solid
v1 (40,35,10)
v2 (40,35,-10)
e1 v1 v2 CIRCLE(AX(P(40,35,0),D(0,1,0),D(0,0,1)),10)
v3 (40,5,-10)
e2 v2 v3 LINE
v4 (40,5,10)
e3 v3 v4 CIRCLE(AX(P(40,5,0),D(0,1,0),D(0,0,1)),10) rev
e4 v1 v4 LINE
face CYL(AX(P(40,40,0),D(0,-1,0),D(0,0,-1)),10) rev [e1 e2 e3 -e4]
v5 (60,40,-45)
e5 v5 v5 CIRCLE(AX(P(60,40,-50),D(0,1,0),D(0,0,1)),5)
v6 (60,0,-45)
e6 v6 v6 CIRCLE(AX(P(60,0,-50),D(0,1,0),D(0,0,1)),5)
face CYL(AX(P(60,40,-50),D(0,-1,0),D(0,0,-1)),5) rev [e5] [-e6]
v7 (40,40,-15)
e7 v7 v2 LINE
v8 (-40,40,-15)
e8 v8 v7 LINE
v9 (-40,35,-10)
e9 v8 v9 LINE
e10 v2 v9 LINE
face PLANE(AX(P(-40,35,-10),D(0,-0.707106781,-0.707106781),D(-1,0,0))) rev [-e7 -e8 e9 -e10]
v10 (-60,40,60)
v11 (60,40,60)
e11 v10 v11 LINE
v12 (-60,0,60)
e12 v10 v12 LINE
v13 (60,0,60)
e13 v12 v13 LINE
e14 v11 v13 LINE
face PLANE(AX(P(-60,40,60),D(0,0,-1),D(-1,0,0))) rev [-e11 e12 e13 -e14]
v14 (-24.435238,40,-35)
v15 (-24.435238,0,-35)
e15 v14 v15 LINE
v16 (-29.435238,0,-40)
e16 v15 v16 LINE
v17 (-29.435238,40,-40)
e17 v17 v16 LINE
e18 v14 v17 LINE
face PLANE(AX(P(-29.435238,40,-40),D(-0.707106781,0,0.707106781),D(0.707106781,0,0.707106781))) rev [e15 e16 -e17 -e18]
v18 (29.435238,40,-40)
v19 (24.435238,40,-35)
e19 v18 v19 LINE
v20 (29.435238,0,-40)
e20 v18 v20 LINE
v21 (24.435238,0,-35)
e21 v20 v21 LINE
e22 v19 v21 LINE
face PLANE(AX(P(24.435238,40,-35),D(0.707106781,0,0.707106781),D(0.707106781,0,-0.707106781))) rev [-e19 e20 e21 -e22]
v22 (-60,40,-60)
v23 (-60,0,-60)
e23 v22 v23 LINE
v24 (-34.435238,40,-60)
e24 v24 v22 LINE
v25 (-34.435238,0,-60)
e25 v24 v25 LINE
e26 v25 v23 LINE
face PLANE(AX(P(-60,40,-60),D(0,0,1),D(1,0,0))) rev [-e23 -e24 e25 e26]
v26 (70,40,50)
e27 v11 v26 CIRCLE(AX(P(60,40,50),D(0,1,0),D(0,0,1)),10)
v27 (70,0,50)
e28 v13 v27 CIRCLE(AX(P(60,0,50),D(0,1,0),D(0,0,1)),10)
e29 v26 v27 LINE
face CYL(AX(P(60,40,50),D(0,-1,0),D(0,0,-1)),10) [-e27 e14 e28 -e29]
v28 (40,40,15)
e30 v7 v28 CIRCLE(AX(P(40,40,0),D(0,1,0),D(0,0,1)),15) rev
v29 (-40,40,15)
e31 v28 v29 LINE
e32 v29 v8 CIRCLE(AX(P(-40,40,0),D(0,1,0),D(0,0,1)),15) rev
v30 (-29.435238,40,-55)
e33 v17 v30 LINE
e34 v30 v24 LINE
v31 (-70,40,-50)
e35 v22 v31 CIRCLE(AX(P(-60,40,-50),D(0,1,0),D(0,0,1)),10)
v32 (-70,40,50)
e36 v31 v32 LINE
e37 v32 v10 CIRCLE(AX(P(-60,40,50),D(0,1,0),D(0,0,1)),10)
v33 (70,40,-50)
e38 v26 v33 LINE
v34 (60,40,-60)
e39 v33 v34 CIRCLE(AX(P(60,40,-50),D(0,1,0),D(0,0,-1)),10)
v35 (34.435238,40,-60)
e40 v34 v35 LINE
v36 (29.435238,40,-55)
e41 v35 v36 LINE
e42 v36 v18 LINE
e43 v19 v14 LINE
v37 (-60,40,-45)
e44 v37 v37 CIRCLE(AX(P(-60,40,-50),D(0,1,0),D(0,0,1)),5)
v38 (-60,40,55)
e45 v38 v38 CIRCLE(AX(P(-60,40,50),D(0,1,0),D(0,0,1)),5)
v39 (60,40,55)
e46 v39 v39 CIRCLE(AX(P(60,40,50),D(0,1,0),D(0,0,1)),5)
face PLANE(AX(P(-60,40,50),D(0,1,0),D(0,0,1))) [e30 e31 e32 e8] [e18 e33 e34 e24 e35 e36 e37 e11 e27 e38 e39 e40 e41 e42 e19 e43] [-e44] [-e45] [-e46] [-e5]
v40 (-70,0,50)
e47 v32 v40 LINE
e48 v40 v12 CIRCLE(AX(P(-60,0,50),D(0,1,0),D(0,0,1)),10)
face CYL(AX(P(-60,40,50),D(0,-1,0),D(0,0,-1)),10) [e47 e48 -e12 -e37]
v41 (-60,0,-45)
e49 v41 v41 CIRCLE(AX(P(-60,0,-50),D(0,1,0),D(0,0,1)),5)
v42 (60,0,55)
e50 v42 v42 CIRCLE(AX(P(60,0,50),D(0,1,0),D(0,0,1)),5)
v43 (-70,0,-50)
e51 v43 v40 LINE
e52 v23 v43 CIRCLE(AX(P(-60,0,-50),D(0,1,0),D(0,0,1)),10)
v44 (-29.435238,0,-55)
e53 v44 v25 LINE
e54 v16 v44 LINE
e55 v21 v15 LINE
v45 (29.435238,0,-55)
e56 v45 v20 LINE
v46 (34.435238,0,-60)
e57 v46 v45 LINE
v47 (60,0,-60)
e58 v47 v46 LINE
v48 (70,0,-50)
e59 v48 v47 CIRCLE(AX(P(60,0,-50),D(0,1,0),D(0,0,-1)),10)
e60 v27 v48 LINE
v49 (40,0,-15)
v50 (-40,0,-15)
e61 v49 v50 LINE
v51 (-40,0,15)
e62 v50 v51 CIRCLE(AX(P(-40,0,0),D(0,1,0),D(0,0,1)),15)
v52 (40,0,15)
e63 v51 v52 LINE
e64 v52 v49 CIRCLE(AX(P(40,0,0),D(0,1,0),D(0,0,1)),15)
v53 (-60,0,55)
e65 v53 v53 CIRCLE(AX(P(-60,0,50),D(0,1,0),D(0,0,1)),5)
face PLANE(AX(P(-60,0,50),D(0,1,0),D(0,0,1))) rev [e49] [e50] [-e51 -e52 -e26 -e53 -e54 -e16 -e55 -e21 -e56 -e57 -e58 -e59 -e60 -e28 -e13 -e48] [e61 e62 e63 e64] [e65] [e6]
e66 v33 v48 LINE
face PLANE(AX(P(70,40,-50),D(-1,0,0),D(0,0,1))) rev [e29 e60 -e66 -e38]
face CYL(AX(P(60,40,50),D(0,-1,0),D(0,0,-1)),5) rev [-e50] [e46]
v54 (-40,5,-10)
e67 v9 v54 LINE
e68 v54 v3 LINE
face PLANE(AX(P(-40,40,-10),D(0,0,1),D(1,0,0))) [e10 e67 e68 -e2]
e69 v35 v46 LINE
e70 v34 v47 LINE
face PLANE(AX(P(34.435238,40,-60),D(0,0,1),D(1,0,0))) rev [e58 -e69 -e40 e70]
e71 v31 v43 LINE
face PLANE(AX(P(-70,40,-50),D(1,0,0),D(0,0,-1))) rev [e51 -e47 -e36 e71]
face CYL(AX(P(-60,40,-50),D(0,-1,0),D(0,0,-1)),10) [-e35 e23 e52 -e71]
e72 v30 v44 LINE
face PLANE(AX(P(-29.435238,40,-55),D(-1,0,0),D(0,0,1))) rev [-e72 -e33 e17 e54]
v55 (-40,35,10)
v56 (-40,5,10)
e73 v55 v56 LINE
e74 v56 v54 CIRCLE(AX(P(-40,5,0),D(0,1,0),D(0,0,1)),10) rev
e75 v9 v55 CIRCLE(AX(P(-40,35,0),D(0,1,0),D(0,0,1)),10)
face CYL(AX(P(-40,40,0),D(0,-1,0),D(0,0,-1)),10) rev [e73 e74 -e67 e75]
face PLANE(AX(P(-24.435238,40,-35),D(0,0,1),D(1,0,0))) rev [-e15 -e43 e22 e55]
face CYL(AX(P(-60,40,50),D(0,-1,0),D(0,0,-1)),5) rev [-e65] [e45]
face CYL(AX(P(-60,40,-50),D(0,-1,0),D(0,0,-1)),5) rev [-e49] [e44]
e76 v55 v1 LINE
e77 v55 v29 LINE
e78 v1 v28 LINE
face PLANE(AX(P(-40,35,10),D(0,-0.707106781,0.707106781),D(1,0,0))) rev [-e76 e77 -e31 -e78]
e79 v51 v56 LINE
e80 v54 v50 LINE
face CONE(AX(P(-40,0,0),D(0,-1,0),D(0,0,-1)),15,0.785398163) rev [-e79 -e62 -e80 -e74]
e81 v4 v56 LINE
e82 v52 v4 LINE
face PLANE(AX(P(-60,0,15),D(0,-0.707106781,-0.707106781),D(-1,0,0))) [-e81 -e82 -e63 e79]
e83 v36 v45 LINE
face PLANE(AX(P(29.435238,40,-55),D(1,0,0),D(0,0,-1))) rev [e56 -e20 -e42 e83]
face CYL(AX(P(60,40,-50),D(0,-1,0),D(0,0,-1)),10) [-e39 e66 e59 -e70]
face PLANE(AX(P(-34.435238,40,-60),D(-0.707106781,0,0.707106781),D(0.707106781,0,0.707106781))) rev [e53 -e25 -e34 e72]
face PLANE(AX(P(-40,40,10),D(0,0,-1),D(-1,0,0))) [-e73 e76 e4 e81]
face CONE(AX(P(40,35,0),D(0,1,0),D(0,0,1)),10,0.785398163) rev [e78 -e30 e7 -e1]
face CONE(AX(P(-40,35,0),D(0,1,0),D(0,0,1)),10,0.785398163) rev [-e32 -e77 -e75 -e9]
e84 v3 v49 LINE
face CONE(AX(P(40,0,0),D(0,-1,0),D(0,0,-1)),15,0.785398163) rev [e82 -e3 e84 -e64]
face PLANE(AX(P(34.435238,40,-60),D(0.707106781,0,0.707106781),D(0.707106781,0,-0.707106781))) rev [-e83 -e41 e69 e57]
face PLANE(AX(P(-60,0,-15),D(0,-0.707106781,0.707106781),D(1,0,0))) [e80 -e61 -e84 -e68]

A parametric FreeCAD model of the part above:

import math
import FreeCAD as App
import Part
import Sketcher

V = App.Vector
Q = App.Units.Quantity


def edges_at(feature, points):
    """Names of the edges that pass closest to the given points."""
    edges = feature.Shape.Edges
    near = lambda p: min(range(len(edges)), key=lambda i: edges[i].distToShape(Part.Vertex(*p))[0])
    return sorted({f"Edge{near(p) + 1}" for p in points})

doc = App.newDocument("Part")
body = doc.addObject("PartDesign::Body", "Body")

# Sketch on XZ plane
sketch1 = body.newObject("Sketcher::SketchObject", "Sketch")
sketch1.AttachmentSupport = (doc.getObject("XZ_Plane"), [""])
sketch1.MapMode = "FlatFace"
sketch1.addGeometry(Part.LineSegment(V(-34.435238, -60, 0), V(-60, -60, 0)), False)
sketch1.addGeometry(Part.ArcOfCircle(Part.Circle(V(-60, -50, 0), V(0, 0, 1), 10), math.radians(180), math.radians(270)), False)
sketch1.addGeometry(Part.LineSegment(V(-70, -50, 0), V(-70, 50, 0)), False)
sketch1.addGeometry(Part.ArcOfCircle(Part.Circle(V(-60, 50, 0), V(0, 0, 1), 10), math.radians(90), math.radians(180)), False)
sketch1.addGeometry(Part.LineSegment(V(-60, 60, 0), V(60, 60, 0)), False)
sketch1.addGeometry(Part.ArcOfCircle(Part.Circle(V(60, 50, 0), V(0, 0, 1), 10), math.radians(0), math.radians(90)), False)
sketch1.addGeometry(Part.LineSegment(V(70, 50, 0), V(70, -50, 0)), False)
sketch1.addGeometry(Part.ArcOfCircle(Part.Circle(V(60, -50, 0), V(0, 0, 1), 10), math.radians(-90), math.radians(0)), False)
sketch1.addGeometry(Part.LineSegment(V(60, -60, 0), V(34.435238, -60, 0)), False)
sketch1.addGeometry(Part.LineSegment(V(34.435238, -60, 0), V(29.435238, -55, 0)), False)
sketch1.addGeometry(Part.LineSegment(V(29.435238, -55, 0), V(29.435238, -40, 0)), False)
sketch1.addGeometry(Part.LineSegment(V(29.435238, -40, 0), V(24.435238, -35, 0)), False)
sketch1.addGeometry(Part.LineSegment(V(24.435238, -35, 0), V(-24.435238, -35, 0)), False)
sketch1.addGeometry(Part.LineSegment(V(-24.435238, -35, 0), V(-29.435238, -40, 0)), False)
sketch1.addGeometry(Part.LineSegment(V(-29.435238, -40, 0), V(-29.435238, -55, 0)), False)
sketch1.addGeometry(Part.LineSegment(V(-29.435238, -55, 0), V(-34.435238, -60, 0)), False)
sketch1.addGeometry(Part.Circle(V(60, 50, 0), V(0, 0, 1), 5), False)
sketch1.addGeometry(Part.Circle(V(-60, 50, 0), V(0, 0, 1), 5), False)
sketch1.addGeometry(Part.Circle(V(60, -50, 0), V(0, 0, 1), 5), False)
sketch1.addGeometry(Part.LineSegment(V(-40, -10, 0), V(40, -10, 0)), False)
sketch1.addGeometry(Part.ArcOfCircle(Part.Circle(V(40, 0, 0), V(0, 0, 1), 10), math.radians(-90), math.radians(90)), False)
sketch1.addGeometry(Part.LineSegment(V(40, 10, 0), V(-40, 10, 0)), False)
sketch1.addGeometry(Part.ArcOfCircle(Part.Circle(V(-40, 0, 0), V(0, 0, 1), 10), math.radians(90), math.radians(270)), False)
sketch1.addGeometry(Part.Circle(V(-60, -50, 0), V(0, 0, 1), 5), False)
sketch1.addConstraint(Sketcher.Constraint("Tangent", 0, 2, 1, 2))
sketch1.addConstraint(Sketcher.Constraint("Tangent", 1, 1, 2, 1))
sketch1.addConstraint(Sketcher.Constraint("Tangent", 2, 2, 3, 2))
sketch1.addConstraint(Sketcher.Constraint("Tangent", 3, 1, 4, 1))
sketch1.addConstraint(Sketcher.Constraint("Tangent", 4, 2, 5, 2))
sketch1.addConstraint(Sketcher.Constraint("Tangent", 5, 1, 6, 1))
sketch1.addConstraint(Sketcher.Constraint("Tangent", 6, 2, 7, 2))
sketch1.addConstraint(Sketcher.Constraint("Tangent", 7, 1, 8, 1))
sketch1.addConstraint(Sketcher.Constraint("Coincident", 8, 2, 9, 1))
sketch1.addConstraint(Sketcher.Constraint("Coincident", 9, 2, 10, 1))
sketch1.addConstraint(Sketcher.Constraint("Coincident", 10, 2, 11, 1))
sketch1.addConstraint(Sketcher.Constraint("Coincident", 11, 2, 12, 1))
sketch1.addConstraint(Sketcher.Constraint("Coincident", 12, 2, 13, 1))
sketch1.addConstraint(Sketcher.Constraint("Coincident", 13, 2, 14, 1))
sketch1.addConstraint(Sketcher.Constraint("Coincident", 14, 2, 15, 1))
sketch1.addConstraint(Sketcher.Constraint("Coincident", 15, 2, 0, 1))
sketch1.addConstraint(Sketcher.Constraint("Tangent", 19, 2, 20, 1))
sketch1.addConstraint(Sketcher.Constraint("Tangent", 20, 2, 21, 1))
sketch1.addConstraint(Sketcher.Constraint("Tangent", 21, 2, 22, 1))
sketch1.addConstraint(Sketcher.Constraint("Tangent", 22, 2, 19, 1))
sketch1.addConstraint(Sketcher.Constraint("Horizontal", 0))
sketch1.addConstraint(Sketcher.Constraint("Vertical", 2))
sketch1.addConstraint(Sketcher.Constraint("Horizontal", 4))
sketch1.addConstraint(Sketcher.Constraint("Vertical", 6))
sketch1.addConstraint(Sketcher.Constraint("Horizontal", 8))
sketch1.addConstraint(Sketcher.Constraint("Vertical", 10))
sketch1.addConstraint(Sketcher.Constraint("Horizontal", 12))
sketch1.addConstraint(Sketcher.Constraint("Vertical", 14))
sketch1.addConstraint(Sketcher.Constraint("Horizontal", 19))
sketch1.addConstraint(Sketcher.Constraint("Horizontal", 21))
sketch1.addConstraint(Sketcher.Constraint("Coincident", 16, 3, 5, 3))
sketch1.addConstraint(Sketcher.Constraint("Coincident", 17, 3, 3, 3))
sketch1.addConstraint(Sketcher.Constraint("Coincident", 18, 3, 7, 3))
sketch1.addConstraint(Sketcher.Constraint("Coincident", 23, 3, 1, 3))
sketch1.addConstraint(Sketcher.Constraint("Equal", 1, 3))
sketch1.addConstraint(Sketcher.Constraint("Equal", 3, 5))
sketch1.addConstraint(Sketcher.Constraint("Equal", 5, 7))
sketch1.addConstraint(Sketcher.Constraint("Equal", 16, 17))
sketch1.addConstraint(Sketcher.Constraint("Equal", 17, 18))
sketch1.addConstraint(Sketcher.Constraint("Equal", 7, 20))
sketch1.addConstraint(Sketcher.Constraint("Equal", 18, 23))
sketch1.addConstraint(Sketcher.Constraint("Symmetric", 1, 3, 5, 3, -1, 1))
sketch1.addConstraint(Sketcher.Constraint("Symmetric", 20, 3, 22, 3, -1, 1))
sketch1.addConstraint(Sketcher.Constraint("Symmetric", 10, 2, 13, 2, -2))
sketch1.addConstraint(Sketcher.Constraint("Symmetric", 8, 2, 15, 2, -2))
sketch1.addConstraint(Sketcher.Constraint("Parallel", 9, 11))
sketch1.addConstraint(Sketcher.Constraint("Perpendicular", 11, 13))
sketch1.addConstraint(Sketcher.Constraint("Parallel", 13, 15))
sketch1.addConstraint(Sketcher.Constraint("Horizontal", 9, 2, 14, 2))
sketch1.addConstraint(Sketcher.Constraint("Equal", 9, 11))
sketch1.addConstraint(Sketcher.Constraint("Diameter", 16, Q("10 mm")))
sketch1.addConstraint(Sketcher.Constraint("Radius", 1, Q("10 mm")))
sketch1.addConstraint(Sketcher.Constraint("DistanceX", 4, 1, 4, 2, Q("120 mm")))
sketch1.addConstraint(Sketcher.Constraint("DistanceX", 19, 1, 19, 2, Q("80 mm")))
sketch1.addConstraint(Sketcher.Constraint("DistanceY", 2, 1, 2, 2, Q("100 mm")))
sketch1.addConstraint(Sketcher.Constraint("DistanceY", 10, 1, 10, 2, Q("15 mm")))
sketch1.addConstraint(Sketcher.Constraint("DistanceY", 9, 2, -1, 1, Q("55 mm")))
sketch1.addConstraint(Sketcher.Constraint("DistanceX", 0, 2, 0, 1, Q("25.564762 mm")))
pad1 = body.newObject("PartDesign::Pad", "Pad")
pad1.Profile = sketch1
pad1.Length = 40
pad1.Reversed = True
doc.recompute()

chamfer = body.newObject("PartDesign::Chamfer", "Chamfer")
chamfer.Base = (pad1, edges_at(pad1, [
    (-50, 0, 0),
    (0, 0, 10),
    (50, 0, 0),
    (0, 0, -10),
    (-50, 40, 0),
    (0, 40, 10),
    (50, 40, 0),
    (0, 40, -10),
]))
chamfer.Size = 5

doc.recompute()
